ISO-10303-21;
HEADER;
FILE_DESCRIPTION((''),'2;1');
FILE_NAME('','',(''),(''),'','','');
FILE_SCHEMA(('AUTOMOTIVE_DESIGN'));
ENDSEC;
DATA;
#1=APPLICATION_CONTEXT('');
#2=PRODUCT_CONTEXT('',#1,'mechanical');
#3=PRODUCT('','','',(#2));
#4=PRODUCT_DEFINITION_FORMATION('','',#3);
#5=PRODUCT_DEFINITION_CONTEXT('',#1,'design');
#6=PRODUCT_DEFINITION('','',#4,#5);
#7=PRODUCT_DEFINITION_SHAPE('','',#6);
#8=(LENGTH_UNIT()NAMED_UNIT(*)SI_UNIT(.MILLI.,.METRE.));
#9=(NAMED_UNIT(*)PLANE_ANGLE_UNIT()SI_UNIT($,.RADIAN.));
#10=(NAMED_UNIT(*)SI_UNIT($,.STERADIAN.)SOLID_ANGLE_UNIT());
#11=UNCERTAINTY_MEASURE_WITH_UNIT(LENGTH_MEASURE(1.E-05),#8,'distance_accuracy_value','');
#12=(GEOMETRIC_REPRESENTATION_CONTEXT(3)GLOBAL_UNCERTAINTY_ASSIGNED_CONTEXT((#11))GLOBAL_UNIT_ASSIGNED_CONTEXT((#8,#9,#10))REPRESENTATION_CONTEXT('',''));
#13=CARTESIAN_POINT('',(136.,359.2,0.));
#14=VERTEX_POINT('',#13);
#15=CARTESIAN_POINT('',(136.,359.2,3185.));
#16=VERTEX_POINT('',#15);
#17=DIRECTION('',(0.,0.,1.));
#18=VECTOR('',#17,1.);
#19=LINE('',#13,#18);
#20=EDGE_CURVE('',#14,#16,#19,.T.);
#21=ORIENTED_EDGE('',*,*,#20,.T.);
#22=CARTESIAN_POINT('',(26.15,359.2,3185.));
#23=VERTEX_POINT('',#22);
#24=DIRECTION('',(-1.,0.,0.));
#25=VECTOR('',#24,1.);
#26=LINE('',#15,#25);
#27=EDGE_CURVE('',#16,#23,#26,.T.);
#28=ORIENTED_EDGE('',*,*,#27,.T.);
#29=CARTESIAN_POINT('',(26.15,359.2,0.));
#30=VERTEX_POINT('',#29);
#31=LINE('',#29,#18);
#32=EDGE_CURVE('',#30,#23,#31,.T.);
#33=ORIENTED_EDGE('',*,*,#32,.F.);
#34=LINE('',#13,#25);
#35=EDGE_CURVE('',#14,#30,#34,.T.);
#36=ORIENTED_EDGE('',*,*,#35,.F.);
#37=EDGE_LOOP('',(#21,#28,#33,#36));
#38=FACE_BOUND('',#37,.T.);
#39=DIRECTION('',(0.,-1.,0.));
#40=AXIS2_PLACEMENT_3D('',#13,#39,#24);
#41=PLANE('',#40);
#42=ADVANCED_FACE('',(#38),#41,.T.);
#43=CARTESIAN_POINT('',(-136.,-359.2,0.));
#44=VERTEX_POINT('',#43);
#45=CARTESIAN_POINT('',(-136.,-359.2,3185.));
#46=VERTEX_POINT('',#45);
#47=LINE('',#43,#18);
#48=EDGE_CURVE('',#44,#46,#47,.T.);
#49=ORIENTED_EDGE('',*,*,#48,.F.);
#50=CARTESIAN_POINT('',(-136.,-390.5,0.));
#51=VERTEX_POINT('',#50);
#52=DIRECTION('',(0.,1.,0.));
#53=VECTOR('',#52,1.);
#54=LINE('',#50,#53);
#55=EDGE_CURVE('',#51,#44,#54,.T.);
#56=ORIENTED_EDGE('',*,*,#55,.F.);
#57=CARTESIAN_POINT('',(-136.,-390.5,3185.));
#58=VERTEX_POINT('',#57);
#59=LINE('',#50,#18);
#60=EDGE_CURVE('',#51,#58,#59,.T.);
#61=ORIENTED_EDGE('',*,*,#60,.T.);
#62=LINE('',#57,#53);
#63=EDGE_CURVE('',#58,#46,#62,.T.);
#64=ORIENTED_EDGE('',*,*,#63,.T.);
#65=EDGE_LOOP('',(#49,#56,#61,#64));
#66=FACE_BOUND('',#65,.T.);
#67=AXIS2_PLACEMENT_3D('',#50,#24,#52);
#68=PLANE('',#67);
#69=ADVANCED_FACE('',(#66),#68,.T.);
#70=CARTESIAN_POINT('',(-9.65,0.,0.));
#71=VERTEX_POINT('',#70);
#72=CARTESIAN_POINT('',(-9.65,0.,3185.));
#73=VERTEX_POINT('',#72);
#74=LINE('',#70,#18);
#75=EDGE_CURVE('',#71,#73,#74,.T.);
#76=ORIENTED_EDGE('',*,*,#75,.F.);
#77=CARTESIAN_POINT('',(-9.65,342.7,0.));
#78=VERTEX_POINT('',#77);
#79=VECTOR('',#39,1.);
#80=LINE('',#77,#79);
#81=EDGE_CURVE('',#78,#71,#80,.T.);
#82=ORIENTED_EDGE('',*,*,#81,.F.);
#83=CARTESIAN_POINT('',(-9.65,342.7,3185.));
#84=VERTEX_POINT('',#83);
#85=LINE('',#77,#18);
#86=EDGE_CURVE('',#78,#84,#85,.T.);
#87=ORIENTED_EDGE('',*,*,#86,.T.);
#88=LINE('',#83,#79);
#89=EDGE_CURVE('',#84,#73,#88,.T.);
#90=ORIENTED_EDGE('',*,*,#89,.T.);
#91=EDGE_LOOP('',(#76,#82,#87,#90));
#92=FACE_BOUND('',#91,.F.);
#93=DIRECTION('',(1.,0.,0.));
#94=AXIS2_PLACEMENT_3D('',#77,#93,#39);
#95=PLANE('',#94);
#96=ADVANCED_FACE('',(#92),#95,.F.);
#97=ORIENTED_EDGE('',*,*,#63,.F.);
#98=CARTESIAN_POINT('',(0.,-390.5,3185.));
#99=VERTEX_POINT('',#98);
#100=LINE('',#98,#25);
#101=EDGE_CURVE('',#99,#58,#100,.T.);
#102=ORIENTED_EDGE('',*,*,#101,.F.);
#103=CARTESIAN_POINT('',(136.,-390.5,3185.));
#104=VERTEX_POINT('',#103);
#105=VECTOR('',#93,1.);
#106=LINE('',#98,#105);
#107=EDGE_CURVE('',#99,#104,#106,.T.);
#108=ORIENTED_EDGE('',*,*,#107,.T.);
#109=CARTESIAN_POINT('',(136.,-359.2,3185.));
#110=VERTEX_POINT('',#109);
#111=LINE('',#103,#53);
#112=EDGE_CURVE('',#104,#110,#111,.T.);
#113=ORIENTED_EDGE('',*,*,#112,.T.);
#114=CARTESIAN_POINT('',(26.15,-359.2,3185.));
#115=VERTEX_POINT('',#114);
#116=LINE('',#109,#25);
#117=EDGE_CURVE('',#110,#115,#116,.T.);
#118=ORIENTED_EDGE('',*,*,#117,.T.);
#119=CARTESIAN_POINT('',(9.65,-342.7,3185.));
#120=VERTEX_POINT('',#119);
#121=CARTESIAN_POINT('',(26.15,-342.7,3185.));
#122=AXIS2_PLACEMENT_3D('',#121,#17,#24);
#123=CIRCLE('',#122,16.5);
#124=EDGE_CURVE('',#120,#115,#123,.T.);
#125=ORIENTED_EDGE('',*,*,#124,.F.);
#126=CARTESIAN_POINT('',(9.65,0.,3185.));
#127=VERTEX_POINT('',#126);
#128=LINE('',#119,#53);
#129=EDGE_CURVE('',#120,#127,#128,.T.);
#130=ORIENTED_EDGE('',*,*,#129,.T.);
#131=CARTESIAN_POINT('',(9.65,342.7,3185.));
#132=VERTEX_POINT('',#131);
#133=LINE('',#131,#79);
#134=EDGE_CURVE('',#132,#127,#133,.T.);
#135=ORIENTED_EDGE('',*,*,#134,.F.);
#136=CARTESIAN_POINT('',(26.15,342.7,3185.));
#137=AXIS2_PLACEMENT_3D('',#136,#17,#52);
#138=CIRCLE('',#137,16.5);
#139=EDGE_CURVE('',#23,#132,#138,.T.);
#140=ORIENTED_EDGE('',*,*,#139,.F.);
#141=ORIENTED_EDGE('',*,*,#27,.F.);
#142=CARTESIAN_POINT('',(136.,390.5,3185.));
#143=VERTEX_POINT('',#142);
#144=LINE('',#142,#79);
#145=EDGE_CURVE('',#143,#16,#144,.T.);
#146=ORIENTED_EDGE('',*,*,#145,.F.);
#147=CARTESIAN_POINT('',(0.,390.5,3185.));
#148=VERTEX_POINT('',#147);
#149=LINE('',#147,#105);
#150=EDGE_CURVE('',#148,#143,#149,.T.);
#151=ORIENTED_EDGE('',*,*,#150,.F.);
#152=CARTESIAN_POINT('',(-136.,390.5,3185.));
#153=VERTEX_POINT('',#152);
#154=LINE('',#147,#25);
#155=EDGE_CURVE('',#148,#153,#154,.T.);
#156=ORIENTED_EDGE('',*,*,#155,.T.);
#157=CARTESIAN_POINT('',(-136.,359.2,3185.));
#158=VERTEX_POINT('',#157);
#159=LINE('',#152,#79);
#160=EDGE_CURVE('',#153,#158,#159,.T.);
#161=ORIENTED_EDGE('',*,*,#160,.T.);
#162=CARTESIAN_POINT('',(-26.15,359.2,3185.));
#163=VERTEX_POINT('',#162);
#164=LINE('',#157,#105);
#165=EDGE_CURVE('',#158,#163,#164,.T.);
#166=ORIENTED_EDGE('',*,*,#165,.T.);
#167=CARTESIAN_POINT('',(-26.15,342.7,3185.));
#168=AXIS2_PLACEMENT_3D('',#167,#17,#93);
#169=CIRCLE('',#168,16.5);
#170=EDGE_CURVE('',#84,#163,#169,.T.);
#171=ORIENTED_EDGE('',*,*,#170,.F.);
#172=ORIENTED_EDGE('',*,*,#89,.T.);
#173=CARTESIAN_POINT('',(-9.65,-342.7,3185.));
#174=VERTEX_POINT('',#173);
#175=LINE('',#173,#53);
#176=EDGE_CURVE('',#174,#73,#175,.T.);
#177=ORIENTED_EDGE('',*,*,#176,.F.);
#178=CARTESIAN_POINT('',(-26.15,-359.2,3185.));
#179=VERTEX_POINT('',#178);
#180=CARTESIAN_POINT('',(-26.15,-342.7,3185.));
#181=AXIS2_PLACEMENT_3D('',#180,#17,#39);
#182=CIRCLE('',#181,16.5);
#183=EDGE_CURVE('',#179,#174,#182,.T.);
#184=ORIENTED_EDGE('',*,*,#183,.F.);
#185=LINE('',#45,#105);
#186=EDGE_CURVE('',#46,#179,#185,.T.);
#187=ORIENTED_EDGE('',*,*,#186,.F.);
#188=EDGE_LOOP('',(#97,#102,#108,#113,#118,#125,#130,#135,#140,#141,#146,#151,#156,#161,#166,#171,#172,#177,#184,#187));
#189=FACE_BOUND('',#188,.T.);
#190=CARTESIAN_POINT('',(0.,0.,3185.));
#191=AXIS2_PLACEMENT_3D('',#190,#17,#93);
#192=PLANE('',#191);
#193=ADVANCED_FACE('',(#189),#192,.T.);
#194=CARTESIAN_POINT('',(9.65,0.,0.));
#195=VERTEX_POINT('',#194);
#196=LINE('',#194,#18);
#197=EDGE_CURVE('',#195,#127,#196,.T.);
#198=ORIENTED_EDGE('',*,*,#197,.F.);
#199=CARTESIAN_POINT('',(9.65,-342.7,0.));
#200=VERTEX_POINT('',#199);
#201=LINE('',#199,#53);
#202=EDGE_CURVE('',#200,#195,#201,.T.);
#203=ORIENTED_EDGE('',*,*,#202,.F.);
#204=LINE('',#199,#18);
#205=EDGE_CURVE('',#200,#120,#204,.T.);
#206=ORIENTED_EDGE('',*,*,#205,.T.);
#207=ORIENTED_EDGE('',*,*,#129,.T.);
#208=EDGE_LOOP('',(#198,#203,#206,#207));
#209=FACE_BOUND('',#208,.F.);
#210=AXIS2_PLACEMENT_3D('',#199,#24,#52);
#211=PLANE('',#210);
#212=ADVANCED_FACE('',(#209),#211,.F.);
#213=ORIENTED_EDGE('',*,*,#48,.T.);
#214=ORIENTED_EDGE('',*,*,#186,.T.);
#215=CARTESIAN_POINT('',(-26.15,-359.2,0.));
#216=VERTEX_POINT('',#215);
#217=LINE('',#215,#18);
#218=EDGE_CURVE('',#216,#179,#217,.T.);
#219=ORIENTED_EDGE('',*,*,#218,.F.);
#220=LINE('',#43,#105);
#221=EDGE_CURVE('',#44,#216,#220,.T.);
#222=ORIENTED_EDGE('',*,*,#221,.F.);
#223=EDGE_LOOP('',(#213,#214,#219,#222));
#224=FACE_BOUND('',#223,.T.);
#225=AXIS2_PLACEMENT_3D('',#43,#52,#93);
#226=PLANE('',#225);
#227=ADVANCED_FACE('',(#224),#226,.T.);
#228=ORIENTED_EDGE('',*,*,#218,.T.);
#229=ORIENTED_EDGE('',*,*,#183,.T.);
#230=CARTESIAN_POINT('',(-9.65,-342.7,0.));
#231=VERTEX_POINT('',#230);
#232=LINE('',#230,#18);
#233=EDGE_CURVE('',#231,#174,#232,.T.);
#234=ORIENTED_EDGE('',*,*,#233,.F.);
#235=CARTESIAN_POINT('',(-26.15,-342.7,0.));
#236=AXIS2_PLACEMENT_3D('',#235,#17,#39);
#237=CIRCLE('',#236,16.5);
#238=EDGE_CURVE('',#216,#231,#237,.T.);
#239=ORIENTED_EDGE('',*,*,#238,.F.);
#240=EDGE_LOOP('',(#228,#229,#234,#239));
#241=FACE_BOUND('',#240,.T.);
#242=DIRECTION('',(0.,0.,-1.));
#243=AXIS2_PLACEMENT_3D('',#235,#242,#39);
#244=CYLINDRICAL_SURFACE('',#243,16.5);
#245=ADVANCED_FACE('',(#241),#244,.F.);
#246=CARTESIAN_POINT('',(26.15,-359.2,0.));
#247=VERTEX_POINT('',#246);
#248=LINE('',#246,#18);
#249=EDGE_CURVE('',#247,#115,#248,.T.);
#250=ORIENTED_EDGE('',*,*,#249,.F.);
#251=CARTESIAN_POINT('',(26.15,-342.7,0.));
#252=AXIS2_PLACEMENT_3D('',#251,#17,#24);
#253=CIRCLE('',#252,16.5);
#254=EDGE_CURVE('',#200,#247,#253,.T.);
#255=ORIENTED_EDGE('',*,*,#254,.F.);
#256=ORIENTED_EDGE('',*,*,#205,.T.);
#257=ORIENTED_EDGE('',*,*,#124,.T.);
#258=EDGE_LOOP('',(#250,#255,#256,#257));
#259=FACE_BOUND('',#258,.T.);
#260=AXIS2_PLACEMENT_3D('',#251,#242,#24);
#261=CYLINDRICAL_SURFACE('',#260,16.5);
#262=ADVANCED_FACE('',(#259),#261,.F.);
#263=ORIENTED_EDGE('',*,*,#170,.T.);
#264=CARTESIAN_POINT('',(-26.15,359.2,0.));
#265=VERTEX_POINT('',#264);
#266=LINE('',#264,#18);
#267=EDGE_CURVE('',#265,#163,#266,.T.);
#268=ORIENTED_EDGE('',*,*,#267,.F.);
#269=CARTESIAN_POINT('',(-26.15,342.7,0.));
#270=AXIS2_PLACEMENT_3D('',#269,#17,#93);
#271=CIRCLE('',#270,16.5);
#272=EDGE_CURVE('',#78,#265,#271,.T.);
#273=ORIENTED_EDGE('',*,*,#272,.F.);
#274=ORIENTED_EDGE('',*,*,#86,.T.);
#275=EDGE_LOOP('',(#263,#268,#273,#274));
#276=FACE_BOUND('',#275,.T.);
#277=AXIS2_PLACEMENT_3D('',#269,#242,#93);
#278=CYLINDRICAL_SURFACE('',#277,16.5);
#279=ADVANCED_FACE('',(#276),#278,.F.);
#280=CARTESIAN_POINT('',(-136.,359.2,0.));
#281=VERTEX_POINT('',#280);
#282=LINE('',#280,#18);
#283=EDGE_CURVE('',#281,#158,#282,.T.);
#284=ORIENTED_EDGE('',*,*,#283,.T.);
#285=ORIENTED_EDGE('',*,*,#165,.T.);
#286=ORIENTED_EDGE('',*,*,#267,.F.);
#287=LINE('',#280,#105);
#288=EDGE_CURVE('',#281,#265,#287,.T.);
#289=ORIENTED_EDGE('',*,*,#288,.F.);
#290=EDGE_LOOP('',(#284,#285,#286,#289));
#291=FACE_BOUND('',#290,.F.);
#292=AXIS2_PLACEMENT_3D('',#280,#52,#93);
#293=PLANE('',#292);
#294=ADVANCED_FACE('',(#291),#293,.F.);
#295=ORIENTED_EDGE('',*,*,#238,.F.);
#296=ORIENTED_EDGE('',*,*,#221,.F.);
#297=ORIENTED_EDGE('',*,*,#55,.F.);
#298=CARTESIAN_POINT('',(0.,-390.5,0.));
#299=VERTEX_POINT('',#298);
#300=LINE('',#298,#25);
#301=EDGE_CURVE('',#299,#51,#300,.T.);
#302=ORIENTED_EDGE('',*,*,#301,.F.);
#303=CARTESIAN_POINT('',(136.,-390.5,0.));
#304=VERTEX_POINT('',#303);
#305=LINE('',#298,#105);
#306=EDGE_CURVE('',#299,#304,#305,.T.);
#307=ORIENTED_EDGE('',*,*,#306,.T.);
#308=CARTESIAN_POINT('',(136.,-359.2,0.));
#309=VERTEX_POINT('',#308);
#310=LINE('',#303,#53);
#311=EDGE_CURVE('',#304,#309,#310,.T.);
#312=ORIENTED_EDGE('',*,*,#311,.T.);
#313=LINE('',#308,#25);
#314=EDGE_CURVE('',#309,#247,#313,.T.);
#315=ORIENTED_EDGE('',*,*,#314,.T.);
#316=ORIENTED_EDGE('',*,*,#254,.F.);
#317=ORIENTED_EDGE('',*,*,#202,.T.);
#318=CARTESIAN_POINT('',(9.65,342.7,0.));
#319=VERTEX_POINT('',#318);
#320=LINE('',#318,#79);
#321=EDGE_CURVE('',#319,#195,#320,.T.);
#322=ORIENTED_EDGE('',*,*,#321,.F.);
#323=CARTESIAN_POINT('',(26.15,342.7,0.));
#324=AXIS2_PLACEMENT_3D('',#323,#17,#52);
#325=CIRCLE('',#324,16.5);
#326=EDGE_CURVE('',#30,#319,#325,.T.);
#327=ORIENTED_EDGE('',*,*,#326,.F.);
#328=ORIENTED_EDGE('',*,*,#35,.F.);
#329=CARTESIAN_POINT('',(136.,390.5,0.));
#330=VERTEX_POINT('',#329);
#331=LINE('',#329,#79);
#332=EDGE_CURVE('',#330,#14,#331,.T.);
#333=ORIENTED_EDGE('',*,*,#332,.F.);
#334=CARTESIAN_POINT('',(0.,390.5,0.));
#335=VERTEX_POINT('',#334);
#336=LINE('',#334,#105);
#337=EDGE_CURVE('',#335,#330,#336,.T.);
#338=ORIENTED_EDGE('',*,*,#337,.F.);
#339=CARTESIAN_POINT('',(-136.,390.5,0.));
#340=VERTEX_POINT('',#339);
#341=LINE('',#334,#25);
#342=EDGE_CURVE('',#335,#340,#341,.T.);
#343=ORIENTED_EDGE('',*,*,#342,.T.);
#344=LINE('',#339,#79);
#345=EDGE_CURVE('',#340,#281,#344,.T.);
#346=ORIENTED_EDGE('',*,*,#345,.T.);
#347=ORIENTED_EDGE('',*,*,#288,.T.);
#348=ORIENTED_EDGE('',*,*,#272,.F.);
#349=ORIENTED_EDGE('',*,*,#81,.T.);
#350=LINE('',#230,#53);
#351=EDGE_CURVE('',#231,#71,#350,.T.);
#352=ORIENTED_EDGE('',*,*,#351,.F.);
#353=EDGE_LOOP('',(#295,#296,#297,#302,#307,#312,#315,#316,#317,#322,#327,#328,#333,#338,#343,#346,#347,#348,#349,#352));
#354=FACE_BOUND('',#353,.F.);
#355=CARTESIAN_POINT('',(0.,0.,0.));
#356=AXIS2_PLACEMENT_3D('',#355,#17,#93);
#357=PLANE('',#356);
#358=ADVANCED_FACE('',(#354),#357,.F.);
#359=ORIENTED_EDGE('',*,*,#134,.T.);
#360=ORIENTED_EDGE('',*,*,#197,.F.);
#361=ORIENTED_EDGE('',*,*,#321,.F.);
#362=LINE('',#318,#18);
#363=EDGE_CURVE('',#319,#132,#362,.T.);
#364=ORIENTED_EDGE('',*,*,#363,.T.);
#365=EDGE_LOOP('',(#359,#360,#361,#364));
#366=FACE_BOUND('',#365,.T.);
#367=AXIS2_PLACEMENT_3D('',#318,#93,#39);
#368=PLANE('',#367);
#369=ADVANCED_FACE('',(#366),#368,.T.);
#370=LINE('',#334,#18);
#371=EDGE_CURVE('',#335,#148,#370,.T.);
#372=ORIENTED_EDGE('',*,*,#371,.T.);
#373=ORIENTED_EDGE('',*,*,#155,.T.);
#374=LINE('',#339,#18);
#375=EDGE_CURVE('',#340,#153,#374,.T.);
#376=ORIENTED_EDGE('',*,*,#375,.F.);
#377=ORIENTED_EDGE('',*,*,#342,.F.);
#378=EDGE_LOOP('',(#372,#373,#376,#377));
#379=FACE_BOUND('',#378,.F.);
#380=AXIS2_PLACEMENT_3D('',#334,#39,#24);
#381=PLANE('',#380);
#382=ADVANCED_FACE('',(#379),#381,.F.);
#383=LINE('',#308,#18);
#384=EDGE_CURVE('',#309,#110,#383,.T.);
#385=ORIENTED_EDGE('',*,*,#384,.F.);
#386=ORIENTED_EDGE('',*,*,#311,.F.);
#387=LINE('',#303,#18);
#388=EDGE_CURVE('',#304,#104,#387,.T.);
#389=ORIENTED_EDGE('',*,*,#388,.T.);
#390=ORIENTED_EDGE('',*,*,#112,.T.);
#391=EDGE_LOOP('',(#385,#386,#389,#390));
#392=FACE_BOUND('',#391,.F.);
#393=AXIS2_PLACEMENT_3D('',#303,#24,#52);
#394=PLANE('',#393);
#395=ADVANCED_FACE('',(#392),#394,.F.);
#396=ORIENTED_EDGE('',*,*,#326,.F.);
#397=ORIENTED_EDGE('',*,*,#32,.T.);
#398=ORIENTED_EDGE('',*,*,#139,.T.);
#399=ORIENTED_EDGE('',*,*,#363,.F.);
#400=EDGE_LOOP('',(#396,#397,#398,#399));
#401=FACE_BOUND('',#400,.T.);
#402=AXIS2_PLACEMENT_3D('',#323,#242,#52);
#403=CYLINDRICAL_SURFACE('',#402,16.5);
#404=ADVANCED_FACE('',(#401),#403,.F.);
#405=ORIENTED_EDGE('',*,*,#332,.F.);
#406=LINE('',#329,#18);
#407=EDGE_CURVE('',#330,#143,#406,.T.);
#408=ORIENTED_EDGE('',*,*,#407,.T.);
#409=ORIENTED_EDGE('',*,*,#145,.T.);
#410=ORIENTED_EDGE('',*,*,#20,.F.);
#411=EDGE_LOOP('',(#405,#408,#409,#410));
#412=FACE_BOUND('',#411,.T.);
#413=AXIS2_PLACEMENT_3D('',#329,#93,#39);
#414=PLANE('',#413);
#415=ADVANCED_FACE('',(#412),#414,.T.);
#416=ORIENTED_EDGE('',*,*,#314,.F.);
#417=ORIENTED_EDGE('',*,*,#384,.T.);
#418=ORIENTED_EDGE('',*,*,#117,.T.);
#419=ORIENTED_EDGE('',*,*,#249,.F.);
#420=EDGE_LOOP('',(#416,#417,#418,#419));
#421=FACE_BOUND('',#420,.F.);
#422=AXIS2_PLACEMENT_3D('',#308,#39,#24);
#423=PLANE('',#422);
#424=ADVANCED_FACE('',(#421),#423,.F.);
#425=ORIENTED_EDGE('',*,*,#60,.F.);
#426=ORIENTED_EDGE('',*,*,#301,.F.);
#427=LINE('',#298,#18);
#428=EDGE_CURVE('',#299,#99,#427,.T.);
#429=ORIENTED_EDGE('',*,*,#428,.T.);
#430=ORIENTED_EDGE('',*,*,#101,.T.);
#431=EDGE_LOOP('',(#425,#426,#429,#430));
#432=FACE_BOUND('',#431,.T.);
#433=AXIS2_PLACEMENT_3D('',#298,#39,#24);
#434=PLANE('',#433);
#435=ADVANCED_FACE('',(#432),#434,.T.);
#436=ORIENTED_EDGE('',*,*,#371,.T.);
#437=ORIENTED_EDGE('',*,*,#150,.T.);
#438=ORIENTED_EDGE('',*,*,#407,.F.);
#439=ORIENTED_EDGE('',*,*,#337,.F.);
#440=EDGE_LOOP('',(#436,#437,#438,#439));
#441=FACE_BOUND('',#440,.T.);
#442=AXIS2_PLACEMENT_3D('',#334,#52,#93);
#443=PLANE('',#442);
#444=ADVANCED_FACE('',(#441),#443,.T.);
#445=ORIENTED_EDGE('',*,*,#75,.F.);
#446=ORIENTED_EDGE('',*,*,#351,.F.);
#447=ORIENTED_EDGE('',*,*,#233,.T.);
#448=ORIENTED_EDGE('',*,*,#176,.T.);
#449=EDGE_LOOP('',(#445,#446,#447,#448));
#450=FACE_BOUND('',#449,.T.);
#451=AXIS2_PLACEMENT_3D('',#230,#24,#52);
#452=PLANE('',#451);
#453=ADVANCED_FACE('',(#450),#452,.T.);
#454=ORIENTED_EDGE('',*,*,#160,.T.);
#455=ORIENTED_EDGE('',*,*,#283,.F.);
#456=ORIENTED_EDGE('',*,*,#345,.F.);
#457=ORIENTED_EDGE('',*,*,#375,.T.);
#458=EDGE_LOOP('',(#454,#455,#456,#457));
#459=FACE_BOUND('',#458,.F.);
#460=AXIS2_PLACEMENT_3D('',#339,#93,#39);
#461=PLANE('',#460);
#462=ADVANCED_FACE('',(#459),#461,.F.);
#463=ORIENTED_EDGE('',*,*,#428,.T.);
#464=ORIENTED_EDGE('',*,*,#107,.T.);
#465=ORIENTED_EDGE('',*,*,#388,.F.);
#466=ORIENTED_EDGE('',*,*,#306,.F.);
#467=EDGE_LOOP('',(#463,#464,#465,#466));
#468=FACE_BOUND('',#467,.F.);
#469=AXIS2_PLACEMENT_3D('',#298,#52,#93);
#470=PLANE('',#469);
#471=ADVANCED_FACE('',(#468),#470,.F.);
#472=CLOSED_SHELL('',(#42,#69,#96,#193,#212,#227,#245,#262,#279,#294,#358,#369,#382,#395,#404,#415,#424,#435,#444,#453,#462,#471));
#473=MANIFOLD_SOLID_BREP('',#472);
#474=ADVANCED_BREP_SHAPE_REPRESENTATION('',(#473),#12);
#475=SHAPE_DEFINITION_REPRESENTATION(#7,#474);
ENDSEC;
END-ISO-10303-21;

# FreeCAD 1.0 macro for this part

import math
import FreeCAD as App
import Part
import Sketcher
from FreeCAD import Vector

doc = App.newDocument("Part")
params = doc.addObject("Spreadsheet::Sheet", "Params")
for row, (alias, value) in enumerate([
    ("sketch1_radius", "16.5 mm"),
    ("sketch1_height", "31.3 mm"),
    ("pad1_length", "3185 mm"),
], start=1):
    params.set(f"A{row}", alias)
    params.set(f"B{row}", "=" + value)
    params.setAlias(f"B{row}", alias)

body = doc.addObject("PartDesign::Body", "Body")

# Sketch on XY plane
sketch1 = body.newObject("Sketcher::SketchObject", "Sketch")
sketch1.AttachmentSupport = (doc.getObject("XY_Plane"), [""])
sketch1.MapMode = "FlatFace"
sketch1.addGeometry([
    Part.LineSegment(Vector(-136, -359.2, 0), Vector(-136, -390.5, 0)),  # 0
    Part.LineSegment(Vector(-136, -390.5, 0), Vector(136, -390.5, 0)),  # 1
    Part.LineSegment(Vector(136, -390.5, 0), Vector(136, -359.2, 0)),  # 2
    Part.LineSegment(Vector(136, -359.2, 0), Vector(26.15, -359.2, 0)),  # 3
    Part.ArcOfCircle(Part.Circle(Vector(26.15, -342.7, 0), Vector(0, 0, 1), 16.5), math.radians(180), math.radians(270)),  # 4
    Part.LineSegment(Vector(9.65, -342.7, 0), Vector(9.65, 342.7, 0)),  # 5
    Part.ArcOfCircle(Part.Circle(Vector(26.15, 342.7, 0), Vector(0, 0, 1), 16.5), math.radians(90), math.radians(180)),  # 6
    Part.LineSegment(Vector(26.15, 359.2, 0), Vector(136, 359.2, 0)),  # 7
    Part.LineSegment(Vector(136, 359.2, 0), Vector(136, 390.5, 0)),  # 8
    Part.LineSegment(Vector(136, 390.5, 0), Vector(-136, 390.5, 0)),  # 9
    Part.LineSegment(Vector(-136, 390.5, 0), Vector(-136, 359.2, 0)),  # 10
    Part.LineSegment(Vector(-136, 359.2, 0), Vector(-26.15, 359.2, 0)),  # 11
    Part.ArcOfCircle(Part.Circle(Vector(-26.15, 342.7, 0), Vector(0, 0, 1), 16.5), math.radians(0), math.radians(90)),  # 12
    Part.LineSegment(Vector(-9.65, 342.7, 0), Vector(-9.65, -342.7, 0)),  # 13
    Part.ArcOfCircle(Part.Circle(Vector(-26.15, -342.7, 0), Vector(0, 0, 1), 16.5), math.radians(-90), math.radians(0)),  # 14
    Part.LineSegment(Vector(-26.15, -359.2, 0), Vector(-136, -359.2, 0)),  # 15
], False)
sketch1.addConstraint([
    Sketcher.Constraint("Coincident", 0, 2, 1, 1),
    Sketcher.Constraint("Coincident", 1, 2, 2, 1),
    Sketcher.Constraint("Coincident", 2, 2, 3, 1),
    Sketcher.Constraint("Tangent", 3, 2, 4, 2),
    Sketcher.Constraint("Tangent", 4, 1, 5, 1),
    Sketcher.Constraint("Tangent", 5, 2, 6, 2),
    Sketcher.Constraint("Tangent", 6, 1, 7, 1),
    Sketcher.Constraint("Coincident", 7, 2, 8, 1),
    Sketcher.Constraint("Coincident", 8, 2, 9, 1),
    Sketcher.Constraint("Coincident", 9, 2, 10, 1),
    Sketcher.Constraint("Coincident", 10, 2, 11, 1),
    Sketcher.Constraint("Tangent", 11, 2, 12, 2),
    Sketcher.Constraint("Tangent", 12, 1, 13, 1),
    Sketcher.Constraint("Tangent", 13, 2, 14, 2),
    Sketcher.Constraint("Tangent", 14, 1, 15, 1),
    Sketcher.Constraint("Coincident", 15, 2, 0, 1),
    Sketcher.Constraint("Vertical", 0),
    Sketcher.Constraint("Horizontal", 1),
    Sketcher.Constraint("Vertical", 2),
    Sketcher.Constraint("Horizontal", 3),
    Sketcher.Constraint("Vertical", 5),
    Sketcher.Constraint("Horizontal", 7),
    Sketcher.Constraint("Vertical", 8),
    Sketcher.Constraint("Horizontal", 9),
    Sketcher.Constraint("Vertical", 10),
    Sketcher.Constraint("Horizontal", 11),
    Sketcher.Constraint("Vertical", 13),
    Sketcher.Constraint("Horizontal", 15),
    Sketcher.Constraint("Equal", 4, 6),
    Sketcher.Constraint("Equal", 6, 12),
    Sketcher.Constraint("Equal", 12, 14),
    Sketcher.Constraint("Symmetric", 4, 3, 12, 3, -1, 1),
    Sketcher.Constraint("Symmetric", 0, 2, 8, 2, -1, 1),
    Sketcher.Constraint("Symmetric", 7, 2, 10, 2, -2),
    Sketcher.Constraint("Symmetric", 2, 2, 15, 2, -2),
    Sketcher.Constraint("Radius", 4, 16.5),
    Sketcher.Constraint("DistanceY", 0, 2, 0, 1, 31.3),
    Sketcher.Constraint("DistanceX", 0, 2, -1, 1, 136.0),
    Sketcher.Constraint("DistanceY", 0, 2, -1, 1, 390.5),
    Sketcher.Constraint("DistanceX", -1, 1, 4, 1, 9.65),
])
sketch1.setExpression("Constraints[35]", "Params.sketch1_radius")
sketch1.setExpression("Constraints[36]", "Params.sketch1_height")
pad1 = body.newObject("PartDesign::Pad", "Pad")
pad1.Profile = sketch1
pad1.setExpression("Length", "Params.pad1_length")

doc.recompute()
